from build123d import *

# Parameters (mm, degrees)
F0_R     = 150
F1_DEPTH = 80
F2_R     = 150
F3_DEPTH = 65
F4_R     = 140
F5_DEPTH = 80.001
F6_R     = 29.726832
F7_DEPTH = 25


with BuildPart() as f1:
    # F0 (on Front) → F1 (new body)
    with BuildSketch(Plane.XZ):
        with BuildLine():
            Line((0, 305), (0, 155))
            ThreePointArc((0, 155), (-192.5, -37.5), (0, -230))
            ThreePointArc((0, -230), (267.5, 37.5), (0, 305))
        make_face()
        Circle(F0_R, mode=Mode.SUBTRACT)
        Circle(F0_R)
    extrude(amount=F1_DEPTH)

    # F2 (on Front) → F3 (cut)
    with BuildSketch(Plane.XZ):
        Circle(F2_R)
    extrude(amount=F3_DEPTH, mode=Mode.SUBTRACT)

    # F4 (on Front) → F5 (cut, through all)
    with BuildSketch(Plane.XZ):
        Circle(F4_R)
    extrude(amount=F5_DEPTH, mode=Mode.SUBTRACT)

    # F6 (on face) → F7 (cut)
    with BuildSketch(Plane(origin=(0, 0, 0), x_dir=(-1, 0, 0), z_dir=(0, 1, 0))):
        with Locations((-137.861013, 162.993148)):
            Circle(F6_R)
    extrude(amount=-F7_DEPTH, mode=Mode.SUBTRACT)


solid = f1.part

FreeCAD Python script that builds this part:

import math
import FreeCAD as App
import Part
import Sketcher

doc = App.newDocument("Part")
body = doc.addObject("PartDesign::Body", "Body")

# Sketch on XZ plane
sketch1 = body.newObject("Sketcher::SketchObject", "Sketch")
sketch1.AttachmentSupport = (doc.getObject("XZ_Plane"), [""])
sketch1.MapMode = "FlatFace"
sketch1.addGeometry([
    Part.LineSegment(App.Vector(0, 305, 0), App.Vector(0, 155, 0)),
    Part.ArcOfCircle(Part.Circle(App.Vector(0, -38, 0), App.Vector(0, 0, 1), 192), math.radians(90), math.radians(270)),
    Part.ArcOfCircle(Part.Circle(App.Vector(0, 38, 0), App.Vector(0, 0, 1), 268), math.radians(-90), math.radians(90)),
], False)
sketch1.addConstraint([
    Sketcher.Constraint("Coincident", 0, 2, 1, 1),
    Sketcher.Constraint("Tangent", 1, 2, 2, 1),
    Sketcher.Constraint("Coincident", 2, 2, 0, 1),
    Sketcher.Constraint("Vertical", 0),
    Sketcher.Constraint("Symmetric", 1, 3, 2, 3, -1, 1),
    Sketcher.Constraint("PointOnObject", 1, 3, -2),
    Sketcher.Constraint("PointOnObject", 0, 2, -2),
    Sketcher.Constraint("Radius", 1, 192.5),
    Sketcher.Constraint("Radius", 2, 267.5),
])
pad1 = body.newObject("PartDesign::Pad", "Pad")
pad1.Profile = sketch1
pad1.Length = 80

# Sketch on XZ plane
sketch2 = body.newObject("Sketcher::SketchObject", "Sketch001")
sketch2.AttachmentSupport = (doc.getObject("XZ_Plane"), [""])
sketch2.MapMode = "FlatFace"
sketch2.addGeometry(Part.Circle(App.Vector(0, 0, 0), App.Vector(0, 0, 1), 150), False)
sketch2.addConstraint([
    Sketcher.Constraint("Coincident", 0, 3, -1, 1),
    Sketcher.Constraint("Diameter", 0, 300.0),
])
pocket1 = body.newObject("PartDesign::Pocket", "Pocket")
pocket1.Profile = sketch2
pocket1.Length = 65
pocket1.Reversed = True

# Sketch on XZ plane
sketch3 = body.newObject("Sketcher::SketchObject", "Sketch002")
sketch3.AttachmentSupport = (doc.getObject("XZ_Plane"), [""])
sketch3.MapMode = "FlatFace"
sketch3.addGeometry(Part.Circle(App.Vector(0, 0, 0), App.Vector(0, 0, 1), 140), False)
sketch3.addConstraint([
    Sketcher.Constraint("Coincident", 0, 3, -1, 1),
    Sketcher.Constraint("Diameter", 0, 280.0),
])
pocket2 = body.newObject("PartDesign::Pocket", "Pocket001")
pocket2.Profile = sketch3
pocket2.Type = "ThroughAll"
pocket2.Reversed = True

# Sketch on XZ plane
sketch4 = body.newObject("Sketcher::SketchObject", "Sketch003")
sketch4.AttachmentSupport = (doc.getObject("XZ_Plane"), [""])
sketch4.MapMode = "FlatFace"
sketch4.addGeometry(Part.Circle(App.Vector(138, 163, 0), App.Vector(0, 0, 1), 30), False)
sketch4.addConstraint([
    Sketcher.Constraint("Diameter", 0, 59.453664),
    Sketcher.Constraint("DistanceX", -1, 1, 0, 3, 137.861013),
    Sketcher.Constraint("DistanceY", -1, 1, 0, 3, 162.993148),
])
pocket3 = body.newObject("PartDesign::Pocket", "Pocket002")
pocket3.Profile = sketch4
pocket3.Length = 25
pocket3.Reversed = True

doc.recompute()
